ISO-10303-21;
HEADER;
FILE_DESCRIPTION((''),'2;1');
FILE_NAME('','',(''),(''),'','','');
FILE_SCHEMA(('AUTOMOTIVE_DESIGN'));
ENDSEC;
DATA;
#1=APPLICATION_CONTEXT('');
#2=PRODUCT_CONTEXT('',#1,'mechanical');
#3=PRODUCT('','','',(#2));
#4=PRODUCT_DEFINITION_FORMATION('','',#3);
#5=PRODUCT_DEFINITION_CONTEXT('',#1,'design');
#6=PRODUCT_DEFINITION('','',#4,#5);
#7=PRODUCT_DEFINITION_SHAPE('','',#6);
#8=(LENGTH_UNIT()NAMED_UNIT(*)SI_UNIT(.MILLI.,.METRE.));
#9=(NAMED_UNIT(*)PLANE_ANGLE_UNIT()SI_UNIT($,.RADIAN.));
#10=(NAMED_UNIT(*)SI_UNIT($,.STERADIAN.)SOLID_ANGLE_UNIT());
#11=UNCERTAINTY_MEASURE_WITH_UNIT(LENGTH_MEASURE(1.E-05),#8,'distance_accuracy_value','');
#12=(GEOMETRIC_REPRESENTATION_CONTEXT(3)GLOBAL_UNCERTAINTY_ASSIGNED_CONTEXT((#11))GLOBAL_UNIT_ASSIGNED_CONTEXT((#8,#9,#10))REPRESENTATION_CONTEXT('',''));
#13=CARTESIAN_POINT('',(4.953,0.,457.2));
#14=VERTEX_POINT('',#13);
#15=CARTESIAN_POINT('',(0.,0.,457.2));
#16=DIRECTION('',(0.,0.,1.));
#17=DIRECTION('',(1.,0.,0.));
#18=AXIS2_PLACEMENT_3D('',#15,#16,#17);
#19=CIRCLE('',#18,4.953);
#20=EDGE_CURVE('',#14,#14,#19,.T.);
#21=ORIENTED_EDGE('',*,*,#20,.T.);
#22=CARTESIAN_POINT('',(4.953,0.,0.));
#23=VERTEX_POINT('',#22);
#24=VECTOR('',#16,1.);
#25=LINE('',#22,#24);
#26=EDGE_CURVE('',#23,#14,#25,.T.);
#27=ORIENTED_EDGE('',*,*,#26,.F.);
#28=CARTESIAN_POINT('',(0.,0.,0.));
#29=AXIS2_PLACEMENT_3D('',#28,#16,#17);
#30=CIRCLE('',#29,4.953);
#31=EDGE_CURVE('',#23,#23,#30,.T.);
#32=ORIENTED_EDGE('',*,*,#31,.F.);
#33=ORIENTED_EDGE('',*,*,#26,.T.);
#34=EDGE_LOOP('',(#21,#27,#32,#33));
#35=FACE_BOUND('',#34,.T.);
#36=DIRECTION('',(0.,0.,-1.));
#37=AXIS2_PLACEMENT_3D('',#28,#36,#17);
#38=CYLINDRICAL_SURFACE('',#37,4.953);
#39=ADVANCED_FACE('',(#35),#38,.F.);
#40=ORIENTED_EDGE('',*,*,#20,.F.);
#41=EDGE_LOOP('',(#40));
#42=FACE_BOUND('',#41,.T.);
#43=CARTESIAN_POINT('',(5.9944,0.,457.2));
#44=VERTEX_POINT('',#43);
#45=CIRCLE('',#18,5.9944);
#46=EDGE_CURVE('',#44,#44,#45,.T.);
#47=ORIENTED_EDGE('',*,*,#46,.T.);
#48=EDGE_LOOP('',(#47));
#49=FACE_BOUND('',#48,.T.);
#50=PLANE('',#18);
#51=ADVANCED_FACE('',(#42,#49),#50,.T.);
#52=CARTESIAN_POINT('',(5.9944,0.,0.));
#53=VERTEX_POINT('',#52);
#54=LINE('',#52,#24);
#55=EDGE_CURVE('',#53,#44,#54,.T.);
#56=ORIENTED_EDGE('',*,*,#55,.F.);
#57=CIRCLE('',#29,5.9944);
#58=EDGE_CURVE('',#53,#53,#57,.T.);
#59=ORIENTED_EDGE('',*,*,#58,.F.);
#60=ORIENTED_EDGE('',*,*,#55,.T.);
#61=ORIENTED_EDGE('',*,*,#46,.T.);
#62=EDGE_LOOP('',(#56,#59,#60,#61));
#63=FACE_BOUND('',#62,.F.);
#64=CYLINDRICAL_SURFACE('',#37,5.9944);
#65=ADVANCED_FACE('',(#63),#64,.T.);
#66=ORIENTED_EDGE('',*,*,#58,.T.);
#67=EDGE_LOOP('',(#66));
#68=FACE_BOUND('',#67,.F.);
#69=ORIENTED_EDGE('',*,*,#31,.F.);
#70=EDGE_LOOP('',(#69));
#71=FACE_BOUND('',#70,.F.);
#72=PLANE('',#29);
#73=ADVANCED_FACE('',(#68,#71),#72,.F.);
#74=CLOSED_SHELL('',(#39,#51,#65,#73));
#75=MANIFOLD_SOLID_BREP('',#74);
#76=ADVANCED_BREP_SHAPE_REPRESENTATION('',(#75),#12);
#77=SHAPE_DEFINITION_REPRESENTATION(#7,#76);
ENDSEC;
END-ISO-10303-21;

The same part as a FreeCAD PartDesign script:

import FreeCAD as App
import Part
import Sketcher

V = App.Vector
Q = App.Units.Quantity

doc = App.newDocument("Part")
body = doc.addObject("PartDesign::Body", "Body")

# Sketch on XY plane
sketch1 = doc.addObject("Sketcher::SketchObject", "Sketch")
body.addObject(sketch1)
sketch1.AttachmentSupport = (doc.XY_Plane, [""])
sketch1.MapMode = "FlatFace"
sketch1.addGeometry([
    Part.Circle(V(0, 0, 0), V(0, 0, 1), 6),
    Part.Circle(V(0, 0, 0), V(0, 0, 1), 5),
], False)
sketch1.addConstraint([
    Sketcher.Constraint("Coincident", 0, 3, -1, 1),
    Sketcher.Constraint("Coincident", 1, 3, -1, 1),
    Sketcher.Constraint("Diameter", 1, Q("0.39 in")),
    Sketcher.Constraint("Diameter", 0, Q("0.472 in")),
])
pad1 = doc.addObject("PartDesign::Pad", "Pad")
body.addObject(pad1)
pad1.Profile = sketch1
pad1.Length = Q("18 in")

doc.recompute()
